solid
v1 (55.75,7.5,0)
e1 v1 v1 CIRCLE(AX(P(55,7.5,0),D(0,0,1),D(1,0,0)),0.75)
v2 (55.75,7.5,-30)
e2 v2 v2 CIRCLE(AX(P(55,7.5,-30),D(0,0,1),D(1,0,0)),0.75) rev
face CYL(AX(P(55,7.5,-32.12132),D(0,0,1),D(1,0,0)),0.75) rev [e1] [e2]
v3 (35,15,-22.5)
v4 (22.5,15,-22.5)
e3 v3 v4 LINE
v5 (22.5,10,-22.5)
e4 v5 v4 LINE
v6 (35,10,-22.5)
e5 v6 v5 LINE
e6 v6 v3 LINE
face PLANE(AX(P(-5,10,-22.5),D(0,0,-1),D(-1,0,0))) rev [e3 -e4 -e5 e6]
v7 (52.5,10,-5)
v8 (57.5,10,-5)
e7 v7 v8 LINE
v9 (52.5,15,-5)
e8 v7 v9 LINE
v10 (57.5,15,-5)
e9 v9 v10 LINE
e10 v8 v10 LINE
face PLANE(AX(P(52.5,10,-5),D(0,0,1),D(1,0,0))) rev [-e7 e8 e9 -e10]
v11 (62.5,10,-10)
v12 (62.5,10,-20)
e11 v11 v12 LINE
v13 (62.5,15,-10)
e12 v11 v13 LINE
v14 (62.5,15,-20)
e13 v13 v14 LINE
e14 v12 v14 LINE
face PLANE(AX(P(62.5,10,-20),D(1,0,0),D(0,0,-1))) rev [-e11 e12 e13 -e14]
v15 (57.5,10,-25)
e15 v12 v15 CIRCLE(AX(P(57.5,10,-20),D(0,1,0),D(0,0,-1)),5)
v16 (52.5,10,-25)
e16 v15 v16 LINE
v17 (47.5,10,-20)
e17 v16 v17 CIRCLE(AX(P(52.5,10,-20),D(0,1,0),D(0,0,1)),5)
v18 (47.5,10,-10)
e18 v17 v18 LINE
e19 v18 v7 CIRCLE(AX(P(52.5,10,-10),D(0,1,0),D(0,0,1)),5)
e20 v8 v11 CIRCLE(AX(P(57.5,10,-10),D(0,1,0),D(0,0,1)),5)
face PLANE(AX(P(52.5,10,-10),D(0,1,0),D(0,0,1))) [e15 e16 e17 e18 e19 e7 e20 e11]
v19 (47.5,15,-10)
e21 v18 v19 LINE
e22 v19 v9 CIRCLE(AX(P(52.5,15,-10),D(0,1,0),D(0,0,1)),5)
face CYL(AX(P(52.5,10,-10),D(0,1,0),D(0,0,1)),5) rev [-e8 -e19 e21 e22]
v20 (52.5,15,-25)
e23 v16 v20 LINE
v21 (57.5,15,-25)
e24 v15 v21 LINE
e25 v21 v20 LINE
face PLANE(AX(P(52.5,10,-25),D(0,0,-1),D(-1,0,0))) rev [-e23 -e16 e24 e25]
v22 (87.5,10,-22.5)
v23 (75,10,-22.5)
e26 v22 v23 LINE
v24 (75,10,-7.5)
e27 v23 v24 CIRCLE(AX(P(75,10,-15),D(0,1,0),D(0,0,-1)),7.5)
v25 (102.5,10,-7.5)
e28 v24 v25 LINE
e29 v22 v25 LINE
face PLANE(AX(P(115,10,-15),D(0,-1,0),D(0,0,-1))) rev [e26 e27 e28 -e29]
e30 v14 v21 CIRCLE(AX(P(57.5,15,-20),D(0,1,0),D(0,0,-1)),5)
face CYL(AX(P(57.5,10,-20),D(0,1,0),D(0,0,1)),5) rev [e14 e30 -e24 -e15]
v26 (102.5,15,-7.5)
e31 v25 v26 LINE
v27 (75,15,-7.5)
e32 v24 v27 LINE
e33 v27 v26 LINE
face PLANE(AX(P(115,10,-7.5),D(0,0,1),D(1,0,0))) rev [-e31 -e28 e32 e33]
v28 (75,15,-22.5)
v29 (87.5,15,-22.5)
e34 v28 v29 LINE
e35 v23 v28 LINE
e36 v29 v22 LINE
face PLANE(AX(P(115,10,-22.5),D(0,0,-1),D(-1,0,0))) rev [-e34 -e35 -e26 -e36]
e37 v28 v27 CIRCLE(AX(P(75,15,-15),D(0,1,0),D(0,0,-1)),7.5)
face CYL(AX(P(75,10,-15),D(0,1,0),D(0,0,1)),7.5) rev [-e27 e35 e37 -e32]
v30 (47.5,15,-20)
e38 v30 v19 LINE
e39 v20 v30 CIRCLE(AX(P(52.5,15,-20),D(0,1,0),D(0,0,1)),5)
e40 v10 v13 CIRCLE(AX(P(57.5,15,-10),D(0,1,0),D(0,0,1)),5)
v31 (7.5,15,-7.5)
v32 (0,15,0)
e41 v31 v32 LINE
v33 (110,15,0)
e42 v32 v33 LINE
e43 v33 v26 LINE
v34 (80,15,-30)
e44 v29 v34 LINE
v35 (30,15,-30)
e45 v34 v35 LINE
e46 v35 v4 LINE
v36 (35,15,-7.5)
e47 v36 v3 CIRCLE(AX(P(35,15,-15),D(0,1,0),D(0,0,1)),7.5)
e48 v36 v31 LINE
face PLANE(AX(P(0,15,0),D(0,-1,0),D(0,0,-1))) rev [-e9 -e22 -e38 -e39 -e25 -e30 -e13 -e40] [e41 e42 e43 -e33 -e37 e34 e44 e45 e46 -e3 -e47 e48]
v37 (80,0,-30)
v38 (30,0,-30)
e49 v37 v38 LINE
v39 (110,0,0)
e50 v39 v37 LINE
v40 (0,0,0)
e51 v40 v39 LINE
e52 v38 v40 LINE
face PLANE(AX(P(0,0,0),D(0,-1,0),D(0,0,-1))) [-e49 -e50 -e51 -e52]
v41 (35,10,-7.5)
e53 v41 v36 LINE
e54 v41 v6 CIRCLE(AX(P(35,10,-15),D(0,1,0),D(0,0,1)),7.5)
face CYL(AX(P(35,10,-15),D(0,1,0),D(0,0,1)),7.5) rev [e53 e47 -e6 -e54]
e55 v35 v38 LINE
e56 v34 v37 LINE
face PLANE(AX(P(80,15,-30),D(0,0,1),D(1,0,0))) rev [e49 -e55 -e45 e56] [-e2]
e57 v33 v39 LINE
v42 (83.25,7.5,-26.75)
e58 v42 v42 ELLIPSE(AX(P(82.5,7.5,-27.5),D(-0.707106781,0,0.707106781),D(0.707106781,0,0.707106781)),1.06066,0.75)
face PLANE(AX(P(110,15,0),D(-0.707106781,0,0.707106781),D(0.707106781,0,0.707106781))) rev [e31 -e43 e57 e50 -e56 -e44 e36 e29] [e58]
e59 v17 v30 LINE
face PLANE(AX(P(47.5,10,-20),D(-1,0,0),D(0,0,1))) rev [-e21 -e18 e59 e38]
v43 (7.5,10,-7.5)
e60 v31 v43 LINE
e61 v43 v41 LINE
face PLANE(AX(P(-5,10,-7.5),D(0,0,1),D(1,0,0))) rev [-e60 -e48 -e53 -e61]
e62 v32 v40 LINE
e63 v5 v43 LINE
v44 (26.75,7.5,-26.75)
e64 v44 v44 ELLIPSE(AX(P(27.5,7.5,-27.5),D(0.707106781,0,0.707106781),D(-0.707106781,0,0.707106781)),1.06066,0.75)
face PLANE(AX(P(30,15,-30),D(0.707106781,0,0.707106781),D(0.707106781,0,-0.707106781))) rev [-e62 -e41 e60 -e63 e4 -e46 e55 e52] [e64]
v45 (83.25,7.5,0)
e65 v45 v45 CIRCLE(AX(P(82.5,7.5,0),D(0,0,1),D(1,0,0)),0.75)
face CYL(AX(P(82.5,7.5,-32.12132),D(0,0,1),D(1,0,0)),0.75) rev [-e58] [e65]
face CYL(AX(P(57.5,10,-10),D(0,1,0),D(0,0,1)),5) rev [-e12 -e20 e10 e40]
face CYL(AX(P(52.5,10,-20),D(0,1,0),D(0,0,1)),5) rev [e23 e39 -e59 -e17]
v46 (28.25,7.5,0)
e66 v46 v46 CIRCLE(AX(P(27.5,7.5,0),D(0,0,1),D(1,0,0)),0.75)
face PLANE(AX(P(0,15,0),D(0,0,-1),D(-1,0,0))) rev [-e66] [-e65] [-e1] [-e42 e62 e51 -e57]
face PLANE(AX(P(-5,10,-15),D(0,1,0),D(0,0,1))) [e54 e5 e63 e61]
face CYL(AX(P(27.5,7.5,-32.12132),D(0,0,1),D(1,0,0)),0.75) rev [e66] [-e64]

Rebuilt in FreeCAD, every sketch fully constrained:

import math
import FreeCAD as App
import Part
import Sketcher
from FreeCAD import Vector
Q = App.Units.Quantity


def add_polygon(sketch, points):
    """Adds a closed chain of lines whose ends are joined by coincident constraints."""
    first, n = sketch.GeometryCount, len(points)
    for a, b in zip(points, points[1:] + points[:1]):
        sketch.addGeometry(Part.LineSegment(App.Vector(*a, 0), App.Vector(*b, 0)), False)
    for i in range(n):
        sketch.addConstraint(Sketcher.Constraint("Coincident", first + i, 2, first + (i + 1) % n, 1))

doc = App.newDocument("Part")
body = doc.addObject("PartDesign::Body", "Body")

sketch1 = doc.addObject("Sketcher::SketchObject", "Sketch")
body.addObject(sketch1)
sketch1.AttachmentSupport = (doc.XZ_Plane, [""])
sketch1.MapMode = "FlatFace"
add_polygon(sketch1, [(0, 0), (110, 0), (80, -30), (30, -30)])
sketch1.addConstraint([
    Sketcher.Constraint("Horizontal", 0),
    Sketcher.Constraint("Horizontal", 2),
    Sketcher.Constraint("Coincident", 3, 2, -1, 1),
    Sketcher.Constraint("Perpendicular", 1, 3),
    Sketcher.Constraint("Equal", 1, 3),
    Sketcher.Constraint("DistanceX", 0, 1, 0, 2, Q("110 mm")),
    Sketcher.Constraint("DistanceX", 2, 2, 2, 1, Q("50 mm")),
])
pad1 = doc.addObject("PartDesign::Pad", "Pad")
body.addObject(pad1)
pad1.Profile = sketch1
pad1.Length = 15
pad1.Reversed = True

sketch2 = doc.addObject("Sketcher::SketchObject", "Sketch001")
body.addObject(sketch2)
sketch2.AttachmentSupport = (doc.XZ_Plane, [""])
sketch2.MapMode = "FlatFace"
sketch2.AttachmentOffset = App.Placement(Vector(0, 0, -15), App.Rotation())
sketch2.addGeometry([
    Part.LineSegment(Vector(35, -22, 0), Vector(-5, -22, 0)),
    Part.ArcOfCircle(Part.Circle(Vector(-5, -15, 0), Vector(0, 0, 1), 8), math.radians(90), math.radians(270)),
    Part.LineSegment(Vector(-5, -8, 0), Vector(35, -8, 0)),
    Part.ArcOfCircle(Part.Circle(Vector(35, -15, 0), Vector(0, 0, 1), 8), math.radians(-90), math.radians(90)),
    Part.LineSegment(Vector(115, -22, 0), Vector(75, -22, 0)),
    Part.ArcOfCircle(Part.Circle(Vector(75, -15, 0), Vector(0, 0, 1), 8), math.radians(90), math.radians(270)),
    Part.LineSegment(Vector(75, -8, 0), Vector(115, -8, 0)),
    Part.ArcOfCircle(Part.Circle(Vector(115, -15, 0), Vector(0, 0, 1), 8), math.radians(-90), math.radians(90)),
], False)
sketch2.addConstraint([
    Sketcher.Constraint("Tangent", 0, 2, 1, 2),
    Sketcher.Constraint("Tangent", 1, 1, 2, 1),
    Sketcher.Constraint("Tangent", 2, 2, 3, 2),
    Sketcher.Constraint("Tangent", 3, 1, 0, 1),
    Sketcher.Constraint("Tangent", 4, 2, 5, 2),
    Sketcher.Constraint("Tangent", 5, 1, 6, 1),
    Sketcher.Constraint("Tangent", 6, 2, 7, 2),
    Sketcher.Constraint("Tangent", 7, 1, 4, 1),
    Sketcher.Constraint("Horizontal", 0),
    Sketcher.Constraint("Horizontal", 2),
    Sketcher.Constraint("Horizontal", 4),
    Sketcher.Constraint("Horizontal", 6),
    Sketcher.Constraint("Equal", 3, 5),
    Sketcher.Constraint("Horizontal", 3, 3, 5, 3),
    Sketcher.Constraint("Equal", 2, 4),
    Sketcher.Constraint("Radius", 1, Q("7.5 mm")),
    Sketcher.Constraint("DistanceX", 0, 2, 0, 1, Q("40 mm")),
    Sketcher.Constraint("DistanceX", 1, 3, -1, 1, Q("5 mm")),
    Sketcher.Constraint("DistanceY", 1, 3, -1, 1, Q("15 mm")),
    Sketcher.Constraint("DistanceX", -1, 1, 5, 3, Q("75 mm")),
])
pocket1 = doc.addObject("PartDesign::Pocket", "Pocket")
body.addObject(pocket1)
pocket1.Profile = sketch2
pocket1.Length = 5
pocket1.Reversed = True

sketch3 = doc.addObject("Sketcher::SketchObject", "Sketch002")
body.addObject(sketch3)
sketch3.AttachmentSupport = (doc.XY_Plane, [""])
sketch3.MapMode = "FlatFace"
sketch3.addGeometry([
    Part.Circle(Vector(27.5, 7.5, 0), Vector(0, 0, 1), 0.8),
    Part.Circle(Vector(55, 7.5, 0), Vector(0, 0, 1), 0.8),
    Part.Circle(Vector(82.5, 7.5, 0), Vector(0, 0, 1), 0.8),
], False)
sketch3.addConstraint([
    Sketcher.Constraint("Equal", 0, 1),
    Sketcher.Constraint("Equal", 1, 2),
    Sketcher.Constraint("Horizontal", 0, 3, 1, 3),
    Sketcher.Constraint("Horizontal", 1, 3, 2, 3),
    Sketcher.Constraint("Diameter", 0, Q("1.5 mm")),
    Sketcher.Constraint("DistanceX", -1, 1, 1, 3, Q("55 mm")),
    Sketcher.Constraint("DistanceX", 0, 3, 2, 3, Q("55 mm")),
    Sketcher.Constraint("DistanceX", -1, 1, 0, 3, Q("27.5 mm")),
    Sketcher.Constraint("DistanceY", -1, 1, 0, 3, Q("7.5 mm")),
])
pocket2 = doc.addObject("PartDesign::Pocket", "Pocket001")
body.addObject(pocket2)
pocket2.Profile = sketch3
pocket2.Length = 30

sketch4 = doc.addObject("Sketcher::SketchObject", "Sketch003")
body.addObject(sketch4)
sketch4.AttachmentSupport = (doc.XZ_Plane, [""])
sketch4.MapMode = "FlatFace"
sketch4.AttachmentOffset = App.Placement(Vector(0, 0, -15), App.Rotation())
sketch4.addGeometry([
    Part.LineSegment(Vector(58, -25, 0), Vector(52, -25, 0)),
    Part.ArcOfCircle(Part.Circle(Vector(52, -20, 0), Vector(0, 0, 1), 5), math.radians(180), math.radians(270)),
    Part.LineSegment(Vector(48, -20, 0), Vector(48, -10, 0)),
    Part.ArcOfCircle(Part.Circle(Vector(52, -10, 0), Vector(0, 0, 1), 5), math.radians(90), math.radians(180)),
    Part.LineSegment(Vector(52, -5, 0), Vector(58, -5, 0)),
    Part.ArcOfCircle(Part.Circle(Vector(58, -10, 0), Vector(0, 0, 1), 5), math.radians(0), math.radians(90)),
    Part.LineSegment(Vector(62, -10, 0), Vector(62, -20, 0)),
    Part.ArcOfCircle(Part.Circle(Vector(58, -20, 0), Vector(0, 0, 1), 5), math.radians(-90), math.radians(0)),
], False)
sketch4.addConstraint([
    Sketcher.Constraint("Tangent", 0, 2, 1, 2),
    Sketcher.Constraint("Tangent", 1, 1, 2, 1),
    Sketcher.Constraint("Tangent", 2, 2, 3, 2),
    Sketcher.Constraint("Tangent", 3, 1, 4, 1),
    Sketcher.Constraint("Tangent", 4, 2, 5, 2),
    Sketcher.Constraint("Tangent", 5, 1, 6, 1),
    Sketcher.Constraint("Tangent", 6, 2, 7, 2),
    Sketcher.Constraint("Tangent", 7, 1, 0, 1),
    Sketcher.Constraint("Horizontal", 0),
    Sketcher.Constraint("Vertical", 2),
    Sketcher.Constraint("Horizontal", 4),
    Sketcher.Constraint("Vertical", 6),
    Sketcher.Constraint("Equal", 1, 3),
    Sketcher.Constraint("Equal", 3, 5),
    Sketcher.Constraint("Equal", 5, 7),
    Sketcher.Constraint("Radius", 1, Q("5 mm")),
    Sketcher.Constraint("DistanceX", 0, 2, 0, 1, Q("5 mm")),
    Sketcher.Constraint("DistanceY", 2, 1, 2, 2, Q("10 mm")),
    Sketcher.Constraint("DistanceY", 1, 3, -1, 1, Q("20 mm")),
    Sketcher.Constraint("DistanceX", -1, 1, 1, 3, Q("52.5 mm")),
])
pocket3 = doc.addObject("PartDesign::Pocket", "Pocket002")
body.addObject(pocket3)
pocket3.Profile = sketch4
pocket3.Length = 5
pocket3.Reversed = True

doc.recompute()
